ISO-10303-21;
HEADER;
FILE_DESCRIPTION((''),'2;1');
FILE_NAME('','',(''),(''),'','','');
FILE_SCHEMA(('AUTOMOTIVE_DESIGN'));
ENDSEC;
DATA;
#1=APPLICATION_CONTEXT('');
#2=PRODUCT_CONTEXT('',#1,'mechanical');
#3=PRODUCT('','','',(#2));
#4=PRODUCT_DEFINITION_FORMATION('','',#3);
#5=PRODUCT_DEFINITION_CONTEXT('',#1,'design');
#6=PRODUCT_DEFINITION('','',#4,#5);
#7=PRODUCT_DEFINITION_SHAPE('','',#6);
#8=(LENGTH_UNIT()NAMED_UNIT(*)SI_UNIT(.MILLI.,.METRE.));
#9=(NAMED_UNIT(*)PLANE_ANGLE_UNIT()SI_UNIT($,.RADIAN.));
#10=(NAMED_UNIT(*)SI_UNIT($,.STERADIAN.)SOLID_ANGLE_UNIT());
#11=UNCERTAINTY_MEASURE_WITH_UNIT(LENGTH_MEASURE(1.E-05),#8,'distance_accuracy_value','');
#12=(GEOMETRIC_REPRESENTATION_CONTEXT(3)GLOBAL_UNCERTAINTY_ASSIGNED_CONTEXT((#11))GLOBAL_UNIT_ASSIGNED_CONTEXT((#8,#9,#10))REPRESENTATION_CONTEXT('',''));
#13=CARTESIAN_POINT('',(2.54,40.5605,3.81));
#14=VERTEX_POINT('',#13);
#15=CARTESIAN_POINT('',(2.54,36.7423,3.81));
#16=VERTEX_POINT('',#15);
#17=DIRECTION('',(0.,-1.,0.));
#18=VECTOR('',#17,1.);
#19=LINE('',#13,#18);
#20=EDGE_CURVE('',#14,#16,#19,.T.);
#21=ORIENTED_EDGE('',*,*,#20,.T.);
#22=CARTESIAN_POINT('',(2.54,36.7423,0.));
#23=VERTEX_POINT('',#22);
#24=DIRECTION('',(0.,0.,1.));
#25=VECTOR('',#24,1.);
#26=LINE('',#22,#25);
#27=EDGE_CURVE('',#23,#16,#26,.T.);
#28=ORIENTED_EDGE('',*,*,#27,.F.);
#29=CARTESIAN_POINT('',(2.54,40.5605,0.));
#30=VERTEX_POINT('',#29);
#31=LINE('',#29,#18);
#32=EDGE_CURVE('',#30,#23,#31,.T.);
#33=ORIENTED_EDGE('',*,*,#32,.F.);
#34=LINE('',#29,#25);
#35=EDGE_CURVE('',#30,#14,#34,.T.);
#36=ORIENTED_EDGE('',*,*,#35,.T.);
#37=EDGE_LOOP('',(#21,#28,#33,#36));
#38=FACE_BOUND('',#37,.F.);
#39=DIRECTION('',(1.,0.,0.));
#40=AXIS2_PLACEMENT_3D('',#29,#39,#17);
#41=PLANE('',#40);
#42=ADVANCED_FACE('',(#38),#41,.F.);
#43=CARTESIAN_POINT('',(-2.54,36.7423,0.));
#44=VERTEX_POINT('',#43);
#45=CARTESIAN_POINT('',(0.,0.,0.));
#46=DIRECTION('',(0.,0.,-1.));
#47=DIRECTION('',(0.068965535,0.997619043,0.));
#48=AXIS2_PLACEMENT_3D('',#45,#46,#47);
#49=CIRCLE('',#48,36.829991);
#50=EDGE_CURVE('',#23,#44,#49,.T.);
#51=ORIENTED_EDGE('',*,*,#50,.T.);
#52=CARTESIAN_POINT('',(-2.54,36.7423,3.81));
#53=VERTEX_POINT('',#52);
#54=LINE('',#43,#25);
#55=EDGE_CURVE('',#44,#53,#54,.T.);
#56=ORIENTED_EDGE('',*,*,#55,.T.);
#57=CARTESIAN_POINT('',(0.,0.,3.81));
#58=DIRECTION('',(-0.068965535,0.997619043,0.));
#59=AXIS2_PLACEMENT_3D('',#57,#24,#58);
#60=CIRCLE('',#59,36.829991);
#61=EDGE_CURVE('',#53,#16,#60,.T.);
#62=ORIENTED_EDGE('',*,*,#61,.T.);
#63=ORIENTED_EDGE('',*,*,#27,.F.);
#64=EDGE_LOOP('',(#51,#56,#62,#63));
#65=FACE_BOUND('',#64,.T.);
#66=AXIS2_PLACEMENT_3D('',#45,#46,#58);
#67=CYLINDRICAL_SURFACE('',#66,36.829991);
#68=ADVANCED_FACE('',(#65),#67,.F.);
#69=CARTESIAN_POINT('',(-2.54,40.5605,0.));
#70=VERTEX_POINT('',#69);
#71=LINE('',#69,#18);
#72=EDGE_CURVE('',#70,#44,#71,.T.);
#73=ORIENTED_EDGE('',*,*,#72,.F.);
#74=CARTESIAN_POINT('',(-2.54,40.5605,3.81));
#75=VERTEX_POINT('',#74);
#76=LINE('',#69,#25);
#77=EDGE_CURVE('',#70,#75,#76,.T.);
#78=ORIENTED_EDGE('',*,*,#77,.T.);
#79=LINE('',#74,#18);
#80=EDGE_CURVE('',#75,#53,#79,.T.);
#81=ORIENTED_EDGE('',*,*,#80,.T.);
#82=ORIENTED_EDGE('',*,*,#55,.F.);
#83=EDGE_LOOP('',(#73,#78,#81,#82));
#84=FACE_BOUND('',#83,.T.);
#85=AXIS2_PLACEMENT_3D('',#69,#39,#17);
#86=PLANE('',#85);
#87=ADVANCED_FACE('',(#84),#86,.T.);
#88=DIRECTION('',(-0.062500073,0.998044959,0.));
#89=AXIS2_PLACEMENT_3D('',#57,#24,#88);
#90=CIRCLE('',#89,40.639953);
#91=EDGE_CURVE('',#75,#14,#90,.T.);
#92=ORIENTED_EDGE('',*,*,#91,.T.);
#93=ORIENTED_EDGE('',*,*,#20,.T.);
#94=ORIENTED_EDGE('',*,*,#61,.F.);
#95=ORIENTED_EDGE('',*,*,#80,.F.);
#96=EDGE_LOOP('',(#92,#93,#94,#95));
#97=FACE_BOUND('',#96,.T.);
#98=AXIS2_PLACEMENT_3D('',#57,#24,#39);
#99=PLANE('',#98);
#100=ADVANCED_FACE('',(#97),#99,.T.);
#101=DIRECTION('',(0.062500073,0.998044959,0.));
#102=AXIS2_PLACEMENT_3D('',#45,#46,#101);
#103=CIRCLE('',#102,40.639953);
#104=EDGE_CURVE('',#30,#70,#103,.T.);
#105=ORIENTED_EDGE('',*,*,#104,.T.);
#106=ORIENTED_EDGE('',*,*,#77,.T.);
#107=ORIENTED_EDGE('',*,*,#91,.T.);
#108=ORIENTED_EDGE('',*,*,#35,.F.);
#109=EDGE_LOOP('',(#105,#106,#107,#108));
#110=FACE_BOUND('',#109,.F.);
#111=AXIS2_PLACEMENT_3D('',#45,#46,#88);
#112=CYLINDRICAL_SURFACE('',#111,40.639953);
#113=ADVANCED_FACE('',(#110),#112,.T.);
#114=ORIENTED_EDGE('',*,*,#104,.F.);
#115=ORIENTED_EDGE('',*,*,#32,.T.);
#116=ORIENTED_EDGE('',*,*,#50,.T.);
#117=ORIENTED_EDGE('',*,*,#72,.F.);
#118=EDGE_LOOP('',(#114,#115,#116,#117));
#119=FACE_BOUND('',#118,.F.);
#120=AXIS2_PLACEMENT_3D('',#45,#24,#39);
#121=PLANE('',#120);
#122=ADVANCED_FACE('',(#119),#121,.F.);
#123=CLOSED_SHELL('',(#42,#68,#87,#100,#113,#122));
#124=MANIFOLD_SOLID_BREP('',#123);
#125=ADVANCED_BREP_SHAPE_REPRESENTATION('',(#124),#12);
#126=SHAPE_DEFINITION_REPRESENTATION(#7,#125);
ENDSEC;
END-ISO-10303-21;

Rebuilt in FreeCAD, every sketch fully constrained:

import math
import FreeCAD as App
import Part
import Sketcher

V = App.Vector
Q = App.Units.Quantity

doc = App.newDocument("Part")
body = doc.addObject("PartDesign::Body", "Body")

sketch1 = body.newObject("Sketcher::SketchObject", "Sketch")
sketch1.AttachmentSupport = (doc.getObject("XY_Plane"), [""])
sketch1.MapMode = "FlatFace"
sketch1.addGeometry([
    Part.LineSegment(V(-2.54, 36.7423, 0), V(-2.54, 40.5605, 0)),
    Part.ArcOfCircle(Part.Circle(V(0, 0, 0), V(0, 0, 1), 40.639953), math.radians(93.583326), math.radians(446.416674)),
    Part.LineSegment(V(2.54, 40.5605, 0), V(2.54, 36.7423, 0)),
    Part.ArcOfCircle(Part.Circle(V(0, 0, 0), V(0, 0, 1), 36.829991), math.radians(93.954573), math.radians(446.045427)),
], False)
sketch1.addConstraint([
    Sketcher.Constraint("Coincident", 0, 2, 1, 1),
    Sketcher.Constraint("Coincident", 1, 2, 2, 1),
    Sketcher.Constraint("Coincident", 2, 2, 3, 2),
    Sketcher.Constraint("Coincident", 3, 1, 0, 1),
    Sketcher.Constraint("Vertical", 0),
    Sketcher.Constraint("Vertical", 2),
    Sketcher.Constraint("Coincident", 1, 3, -1, 1),
    Sketcher.Constraint("Coincident", 3, 3, -1, 1),
    Sketcher.Constraint("Horizontal", 0, 2, 1, 2),
    Sketcher.Constraint("Radius", 1, Q("1.6 in")),
    Sketcher.Constraint("Radius", 3, Q("1.45 in")),
    Sketcher.Constraint("DistanceX", 0, 2, 1, 2, Q("0.2 in")),
])
pad1 = body.newObject("PartDesign::Pad", "Pad")
pad1.Profile = sketch1
pad1.Length = Q("0.15 in")

doc.recompute()
